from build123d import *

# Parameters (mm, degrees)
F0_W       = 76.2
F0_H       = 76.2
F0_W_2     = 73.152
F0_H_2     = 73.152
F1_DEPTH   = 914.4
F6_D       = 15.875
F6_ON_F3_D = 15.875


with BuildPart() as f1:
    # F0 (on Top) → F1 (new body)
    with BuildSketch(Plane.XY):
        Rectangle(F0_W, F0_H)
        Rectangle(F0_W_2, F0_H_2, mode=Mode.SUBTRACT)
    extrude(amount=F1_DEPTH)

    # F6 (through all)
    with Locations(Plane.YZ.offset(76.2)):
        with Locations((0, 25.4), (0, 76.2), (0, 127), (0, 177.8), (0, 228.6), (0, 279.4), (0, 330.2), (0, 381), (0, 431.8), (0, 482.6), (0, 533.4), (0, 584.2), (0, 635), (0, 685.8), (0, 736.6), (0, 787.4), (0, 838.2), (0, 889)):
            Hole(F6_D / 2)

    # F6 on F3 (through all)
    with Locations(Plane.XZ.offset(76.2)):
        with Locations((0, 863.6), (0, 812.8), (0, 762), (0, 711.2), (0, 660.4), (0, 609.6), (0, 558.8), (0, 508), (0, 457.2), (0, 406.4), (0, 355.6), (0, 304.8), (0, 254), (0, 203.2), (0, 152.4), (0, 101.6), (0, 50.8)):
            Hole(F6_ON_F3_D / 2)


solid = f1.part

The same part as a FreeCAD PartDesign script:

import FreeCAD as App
import Part
import Sketcher

V = App.Vector
Q = App.Units.Quantity


def add_polygon(sketch, points):
    """Adds a closed chain of lines whose ends are joined by coincident constraints."""
    first, n = sketch.GeometryCount, len(points)
    for a, b in zip(points, points[1:] + points[:1]):
        sketch.addGeometry(Part.LineSegment(App.Vector(*a, 0), App.Vector(*b, 0)), False)
    for i in range(n):
        sketch.addConstraint(Sketcher.Constraint("Coincident", first + i, 2, first + (i + 1) % n, 1))

doc = App.newDocument("Part")
body = doc.addObject("PartDesign::Body", "Body")

sketch1 = body.newObject("Sketcher::SketchObject", "Sketch")
sketch1.AttachmentSupport = (doc.getObject("XY_Plane"), [""])
sketch1.MapMode = "FlatFace"
add_polygon(sketch1, [(-38.1, 38.1), (-38.1, -38.1), (38.1, -38.1), (38.1, 38.1)])
add_polygon(sketch1, [(36.576, -36.576), (-36.576, -36.576), (-36.576, 36.576), (36.576, 36.576)])
sketch1.addConstraint([
    Sketcher.Constraint("Vertical", 0),
    Sketcher.Constraint("Horizontal", 1),
    Sketcher.Constraint("Vertical", 2),
    Sketcher.Constraint("Horizontal", 3),
    Sketcher.Constraint("Horizontal", 4),
    Sketcher.Constraint("Vertical", 5),
    Sketcher.Constraint("Horizontal", 6),
    Sketcher.Constraint("Vertical", 7),
    Sketcher.Constraint("Symmetric", 0, 2, 2, 2, -1, 1),
    Sketcher.Constraint("Symmetric", 4, 2, 6, 2, -1, 1),
    Sketcher.Constraint("Equal", 3, 0),
    Sketcher.Constraint("Equal", 6, 5),
    Sketcher.Constraint("DistanceX", 1, 1, 1, 2, Q("3 in")),
    Sketcher.Constraint("DistanceX", 4, 2, 4, 1, Q("2.88 in")),
])
pad1 = body.newObject("PartDesign::Pad", "Pad")
pad1.Profile = sketch1
pad1.Length = Q("36 in")

sketch2 = body.newObject("Sketcher::SketchObject", "Sketch001")
sketch2.AttachmentSupport = (doc.getObject("YZ_Plane"), [""])
sketch2.MapMode = "FlatFace"
sketch2.AttachmentOffset = App.Placement(V(0, 0, 3 * 25.4), App.Rotation())
sketch2.addGeometry([
    Part.Circle(V(0, 25.4, 0), V(0, 0, 1), 7.9375),
    Part.Circle(V(0, 76.2, 0), V(0, 0, 1), 7.9375),
    Part.Circle(V(0, 127, 0), V(0, 0, 1), 7.9375),
    Part.Circle(V(0, 177.8, 0), V(0, 0, 1), 7.9375),
    Part.Circle(V(0, 228.6, 0), V(0, 0, 1), 7.9375),
    Part.Circle(V(0, 279.4, 0), V(0, 0, 1), 7.9375),
    Part.Circle(V(0, 330.2, 0), V(0, 0, 1), 7.9375),
    Part.Circle(V(0, 381, 0), V(0, 0, 1), 7.9375),
    Part.Circle(V(0, 431.8, 0), V(0, 0, 1), 7.9375),
    Part.Circle(V(0, 482.6, 0), V(0, 0, 1), 7.9375),
    Part.Circle(V(0, 533.4, 0), V(0, 0, 1), 7.9375),
    Part.Circle(V(0, 584.2, 0), V(0, 0, 1), 7.9375),
    Part.Circle(V(0, 635, 0), V(0, 0, 1), 7.9375),
    Part.Circle(V(0, 685.8, 0), V(0, 0, 1), 7.9375),
    Part.Circle(V(0, 736.6, 0), V(0, 0, 1), 7.9375),
    Part.Circle(V(0, 787.4, 0), V(0, 0, 1), 7.9375),
    Part.Circle(V(0, 838.2, 0), V(0, 0, 1), 7.9375),
    Part.Circle(V(0, 889, 0), V(0, 0, 1), 7.9375),
], False)
sketch2.addConstraint([
    Sketcher.Constraint("Equal", 0, 1),
    Sketcher.Constraint("Equal", 1, 2),
    Sketcher.Constraint("Equal", 2, 3),
    Sketcher.Constraint("Equal", 3, 4),
    Sketcher.Constraint("Equal", 4, 5),
    Sketcher.Constraint("Equal", 5, 6),
    Sketcher.Constraint("Equal", 6, 7),
    Sketcher.Constraint("Equal", 7, 8),
    Sketcher.Constraint("Equal", 8, 9),
    Sketcher.Constraint("Equal", 9, 10),
    Sketcher.Constraint("Equal", 10, 11),
    Sketcher.Constraint("Equal", 11, 12),
    Sketcher.Constraint("Equal", 12, 13),
    Sketcher.Constraint("Equal", 13, 14),
    Sketcher.Constraint("Equal", 14, 15),
    Sketcher.Constraint("Equal", 15, 16),
    Sketcher.Constraint("Equal", 16, 17),
    Sketcher.Constraint("PointOnObject", 0, 3, -2),
    Sketcher.Constraint("PointOnObject", 1, 3, -2),
    Sketcher.Constraint("PointOnObject", 2, 3, -2),
    Sketcher.Constraint("PointOnObject", 3, 3, -2),
    Sketcher.Constraint("PointOnObject", 4, 3, -2),
    Sketcher.Constraint("PointOnObject", 5, 3, -2),
    Sketcher.Constraint("PointOnObject", 6, 3, -2),
    Sketcher.Constraint("PointOnObject", 7, 3, -2),
    Sketcher.Constraint("PointOnObject", 8, 3, -2),
    Sketcher.Constraint("PointOnObject", 9, 3, -2),
    Sketcher.Constraint("PointOnObject", 10, 3, -2),
    Sketcher.Constraint("PointOnObject", 11, 3, -2),
    Sketcher.Constraint("PointOnObject", 12, 3, -2),
    Sketcher.Constraint("PointOnObject", 13, 3, -2),
    Sketcher.Constraint("PointOnObject", 14, 3, -2),
    Sketcher.Constraint("PointOnObject", 15, 3, -2),
    Sketcher.Constraint("PointOnObject", 16, 3, -2),
    Sketcher.Constraint("PointOnObject", 17, 3, -2),
    Sketcher.Constraint("Diameter", 0, Q("0.625 in")),
    Sketcher.Constraint("DistanceY", -1, 1, 0, 3, Q("1 in")),
    Sketcher.Constraint("DistanceY", -1, 1, 1, 3, Q("3 in")),
    Sketcher.Constraint("DistanceY", -1, 1, 2, 3, Q("5 in")),
    Sketcher.Constraint("DistanceY", -1, 1, 3, 3, Q("7 in")),
    Sketcher.Constraint("DistanceY", -1, 1, 4, 3, Q("9 in")),
    Sketcher.Constraint("DistanceY", -1, 1, 5, 3, Q("11 in")),
    Sketcher.Constraint("DistanceY", -1, 1, 6, 3, Q("13 in")),
    Sketcher.Constraint("DistanceY", -1, 1, 7, 3, Q("15 in")),
    Sketcher.Constraint("DistanceY", -1, 1, 8, 3, Q("17 in")),
    Sketcher.Constraint("DistanceY", -1, 1, 9, 3, Q("19 in")),
    Sketcher.Constraint("DistanceY", -1, 1, 10, 3, Q("21 in")),
    Sketcher.Constraint("DistanceY", -1, 1, 11, 3, Q("23 in")),
    Sketcher.Constraint("DistanceY", -1, 1, 12, 3, Q("25 in")),
    Sketcher.Constraint("DistanceY", -1, 1, 13, 3, Q("27 in")),
    Sketcher.Constraint("DistanceY", -1, 1, 14, 3, Q("29 in")),
    Sketcher.Constraint("DistanceY", -1, 1, 15, 3, Q("31 in")),
    Sketcher.Constraint("DistanceY", -1, 1, 16, 3, Q("33 in")),
    Sketcher.Constraint("DistanceY", -1, 1, 17, 3, Q("35 in")),
])
doc.recompute()
hole = body.newObject("PartDesign::Hole", "Hole")
hole.Profile = sketch2
hole.ThreadType = "None"
hole.Diameter = Q("0.625 in")
hole.DepthType = "ThroughAll"

sketch3 = body.newObject("Sketcher::SketchObject", "Sketch002")
sketch3.AttachmentSupport = (doc.getObject("XZ_Plane"), [""])
sketch3.MapMode = "FlatFace"
sketch3.AttachmentOffset = App.Placement(V(0, 0, 3 * 25.4), App.Rotation())
sketch3.addGeometry([
    Part.Circle(V(0, 863.6, 0), V(0, 0, 1), 7.9375),
    Part.Circle(V(0, 812.8, 0), V(0, 0, 1), 7.9375),
    Part.Circle(V(0, 762, 0), V(0, 0, 1), 7.9375),
    Part.Circle(V(0, 711.2, 0), V(0, 0, 1), 7.9375),
    Part.Circle(V(0, 660.4, 0), V(0, 0, 1), 7.9375),
    Part.Circle(V(0, 609.6, 0), V(0, 0, 1), 7.9375),
    Part.Circle(V(0, 558.8, 0), V(0, 0, 1), 7.9375),
    Part.Circle(V(0, 508, 0), V(0, 0, 1), 7.9375),
    Part.Circle(V(0, 457.2, 0), V(0, 0, 1), 7.9375),
    Part.Circle(V(0, 406.4, 0), V(0, 0, 1), 7.9375),
    Part.Circle(V(0, 355.6, 0), V(0, 0, 1), 7.9375),
    Part.Circle(V(0, 304.8, 0), V(0, 0, 1), 7.9375),
    Part.Circle(V(0, 254, 0), V(0, 0, 1), 7.9375),
    Part.Circle(V(0, 203.2, 0), V(0, 0, 1), 7.9375),
    Part.Circle(V(0, 152.4, 0), V(0, 0, 1), 7.9375),
    Part.Circle(V(0, 101.6, 0), V(0, 0, 1), 7.9375),
    Part.Circle(V(0, 50.8, 0), V(0, 0, 1), 7.9375),
], False)
sketch3.addConstraint([
    Sketcher.Constraint("Equal", 0, 1),
    Sketcher.Constraint("Equal", 1, 2),
    Sketcher.Constraint("Equal", 2, 3),
    Sketcher.Constraint("Equal", 3, 4),
    Sketcher.Constraint("Equal", 4, 5),
    Sketcher.Constraint("Equal", 5, 6),
    Sketcher.Constraint("Equal", 6, 7),
    Sketcher.Constraint("Equal", 7, 8),
    Sketcher.Constraint("Equal", 8, 9),
    Sketcher.Constraint("Equal", 9, 10),
    Sketcher.Constraint("Equal", 10, 11),
    Sketcher.Constraint("Equal", 11, 12),
    Sketcher.Constraint("Equal", 12, 13),
    Sketcher.Constraint("Equal", 13, 14),
    Sketcher.Constraint("Equal", 14, 15),
    Sketcher.Constraint("Equal", 15, 16),
    Sketcher.Constraint("PointOnObject", 0, 3, -2),
    Sketcher.Constraint("PointOnObject", 1, 3, -2),
    Sketcher.Constraint("PointOnObject", 2, 3, -2),
    Sketcher.Constraint("PointOnObject", 3, 3, -2),
    Sketcher.Constraint("PointOnObject", 4, 3, -2),
    Sketcher.Constraint("PointOnObject", 5, 3, -2),
    Sketcher.Constraint("PointOnObject", 6, 3, -2),
    Sketcher.Constraint("PointOnObject", 7, 3, -2),
    Sketcher.Constraint("PointOnObject", 8, 3, -2),
    Sketcher.Constraint("PointOnObject", 9, 3, -2),
    Sketcher.Constraint("PointOnObject", 10, 3, -2),
    Sketcher.Constraint("PointOnObject", 11, 3, -2),
    Sketcher.Constraint("PointOnObject", 12, 3, -2),
    Sketcher.Constraint("PointOnObject", 13, 3, -2),
    Sketcher.Constraint("PointOnObject", 14, 3, -2),
    Sketcher.Constraint("PointOnObject", 15, 3, -2),
    Sketcher.Constraint("PointOnObject", 16, 3, -2),
    Sketcher.Constraint("Diameter", 0, Q("0.625 in")),
    Sketcher.Constraint("DistanceY", -1, 1, 0, 3, Q("34 in")),
    Sketcher.Constraint("DistanceY", -1, 1, 1, 3, Q("32 in")),
    Sketcher.Constraint("DistanceY", -1, 1, 2, 3, Q("30 in")),
    Sketcher.Constraint("DistanceY", -1, 1, 3, 3, Q("28 in")),
    Sketcher.Constraint("DistanceY", -1, 1, 4, 3, Q("26 in")),
    Sketcher.Constraint("DistanceY", -1, 1, 5, 3, Q("24 in")),
    Sketcher.Constraint("DistanceY", -1, 1, 6, 3, Q("22 in")),
    Sketcher.Constraint("DistanceY", -1, 1, 7, 3, Q("20 in")),
    Sketcher.Constraint("DistanceY", -1, 1, 8, 3, Q("18 in")),
    Sketcher.Constraint("DistanceY", -1, 1, 9, 3, Q("16 in")),
    Sketcher.Constraint("DistanceY", -1, 1, 10, 3, Q("14 in")),
    Sketcher.Constraint("DistanceY", -1, 1, 11, 3, Q("12 in")),
    Sketcher.Constraint("DistanceY", -1, 1, 12, 3, Q("10 in")),
    Sketcher.Constraint("DistanceY", -1, 1, 13, 3, Q("8 in")),
    Sketcher.Constraint("DistanceY", -1, 1, 14, 3, Q("6 in")),
    Sketcher.Constraint("DistanceY", -1, 1, 15, 3, Q("4 in")),
    Sketcher.Constraint("DistanceY", -1, 1, 16, 3, Q("2 in")),
])
doc.recompute()
hole2 = body.newObject("PartDesign::Hole", "Hole001")
hole2.Profile = sketch3
hole2.ThreadType = "None"
hole2.Diameter = Q("0.625 in")
hole2.DepthType = "ThroughAll"

doc.recompute()
